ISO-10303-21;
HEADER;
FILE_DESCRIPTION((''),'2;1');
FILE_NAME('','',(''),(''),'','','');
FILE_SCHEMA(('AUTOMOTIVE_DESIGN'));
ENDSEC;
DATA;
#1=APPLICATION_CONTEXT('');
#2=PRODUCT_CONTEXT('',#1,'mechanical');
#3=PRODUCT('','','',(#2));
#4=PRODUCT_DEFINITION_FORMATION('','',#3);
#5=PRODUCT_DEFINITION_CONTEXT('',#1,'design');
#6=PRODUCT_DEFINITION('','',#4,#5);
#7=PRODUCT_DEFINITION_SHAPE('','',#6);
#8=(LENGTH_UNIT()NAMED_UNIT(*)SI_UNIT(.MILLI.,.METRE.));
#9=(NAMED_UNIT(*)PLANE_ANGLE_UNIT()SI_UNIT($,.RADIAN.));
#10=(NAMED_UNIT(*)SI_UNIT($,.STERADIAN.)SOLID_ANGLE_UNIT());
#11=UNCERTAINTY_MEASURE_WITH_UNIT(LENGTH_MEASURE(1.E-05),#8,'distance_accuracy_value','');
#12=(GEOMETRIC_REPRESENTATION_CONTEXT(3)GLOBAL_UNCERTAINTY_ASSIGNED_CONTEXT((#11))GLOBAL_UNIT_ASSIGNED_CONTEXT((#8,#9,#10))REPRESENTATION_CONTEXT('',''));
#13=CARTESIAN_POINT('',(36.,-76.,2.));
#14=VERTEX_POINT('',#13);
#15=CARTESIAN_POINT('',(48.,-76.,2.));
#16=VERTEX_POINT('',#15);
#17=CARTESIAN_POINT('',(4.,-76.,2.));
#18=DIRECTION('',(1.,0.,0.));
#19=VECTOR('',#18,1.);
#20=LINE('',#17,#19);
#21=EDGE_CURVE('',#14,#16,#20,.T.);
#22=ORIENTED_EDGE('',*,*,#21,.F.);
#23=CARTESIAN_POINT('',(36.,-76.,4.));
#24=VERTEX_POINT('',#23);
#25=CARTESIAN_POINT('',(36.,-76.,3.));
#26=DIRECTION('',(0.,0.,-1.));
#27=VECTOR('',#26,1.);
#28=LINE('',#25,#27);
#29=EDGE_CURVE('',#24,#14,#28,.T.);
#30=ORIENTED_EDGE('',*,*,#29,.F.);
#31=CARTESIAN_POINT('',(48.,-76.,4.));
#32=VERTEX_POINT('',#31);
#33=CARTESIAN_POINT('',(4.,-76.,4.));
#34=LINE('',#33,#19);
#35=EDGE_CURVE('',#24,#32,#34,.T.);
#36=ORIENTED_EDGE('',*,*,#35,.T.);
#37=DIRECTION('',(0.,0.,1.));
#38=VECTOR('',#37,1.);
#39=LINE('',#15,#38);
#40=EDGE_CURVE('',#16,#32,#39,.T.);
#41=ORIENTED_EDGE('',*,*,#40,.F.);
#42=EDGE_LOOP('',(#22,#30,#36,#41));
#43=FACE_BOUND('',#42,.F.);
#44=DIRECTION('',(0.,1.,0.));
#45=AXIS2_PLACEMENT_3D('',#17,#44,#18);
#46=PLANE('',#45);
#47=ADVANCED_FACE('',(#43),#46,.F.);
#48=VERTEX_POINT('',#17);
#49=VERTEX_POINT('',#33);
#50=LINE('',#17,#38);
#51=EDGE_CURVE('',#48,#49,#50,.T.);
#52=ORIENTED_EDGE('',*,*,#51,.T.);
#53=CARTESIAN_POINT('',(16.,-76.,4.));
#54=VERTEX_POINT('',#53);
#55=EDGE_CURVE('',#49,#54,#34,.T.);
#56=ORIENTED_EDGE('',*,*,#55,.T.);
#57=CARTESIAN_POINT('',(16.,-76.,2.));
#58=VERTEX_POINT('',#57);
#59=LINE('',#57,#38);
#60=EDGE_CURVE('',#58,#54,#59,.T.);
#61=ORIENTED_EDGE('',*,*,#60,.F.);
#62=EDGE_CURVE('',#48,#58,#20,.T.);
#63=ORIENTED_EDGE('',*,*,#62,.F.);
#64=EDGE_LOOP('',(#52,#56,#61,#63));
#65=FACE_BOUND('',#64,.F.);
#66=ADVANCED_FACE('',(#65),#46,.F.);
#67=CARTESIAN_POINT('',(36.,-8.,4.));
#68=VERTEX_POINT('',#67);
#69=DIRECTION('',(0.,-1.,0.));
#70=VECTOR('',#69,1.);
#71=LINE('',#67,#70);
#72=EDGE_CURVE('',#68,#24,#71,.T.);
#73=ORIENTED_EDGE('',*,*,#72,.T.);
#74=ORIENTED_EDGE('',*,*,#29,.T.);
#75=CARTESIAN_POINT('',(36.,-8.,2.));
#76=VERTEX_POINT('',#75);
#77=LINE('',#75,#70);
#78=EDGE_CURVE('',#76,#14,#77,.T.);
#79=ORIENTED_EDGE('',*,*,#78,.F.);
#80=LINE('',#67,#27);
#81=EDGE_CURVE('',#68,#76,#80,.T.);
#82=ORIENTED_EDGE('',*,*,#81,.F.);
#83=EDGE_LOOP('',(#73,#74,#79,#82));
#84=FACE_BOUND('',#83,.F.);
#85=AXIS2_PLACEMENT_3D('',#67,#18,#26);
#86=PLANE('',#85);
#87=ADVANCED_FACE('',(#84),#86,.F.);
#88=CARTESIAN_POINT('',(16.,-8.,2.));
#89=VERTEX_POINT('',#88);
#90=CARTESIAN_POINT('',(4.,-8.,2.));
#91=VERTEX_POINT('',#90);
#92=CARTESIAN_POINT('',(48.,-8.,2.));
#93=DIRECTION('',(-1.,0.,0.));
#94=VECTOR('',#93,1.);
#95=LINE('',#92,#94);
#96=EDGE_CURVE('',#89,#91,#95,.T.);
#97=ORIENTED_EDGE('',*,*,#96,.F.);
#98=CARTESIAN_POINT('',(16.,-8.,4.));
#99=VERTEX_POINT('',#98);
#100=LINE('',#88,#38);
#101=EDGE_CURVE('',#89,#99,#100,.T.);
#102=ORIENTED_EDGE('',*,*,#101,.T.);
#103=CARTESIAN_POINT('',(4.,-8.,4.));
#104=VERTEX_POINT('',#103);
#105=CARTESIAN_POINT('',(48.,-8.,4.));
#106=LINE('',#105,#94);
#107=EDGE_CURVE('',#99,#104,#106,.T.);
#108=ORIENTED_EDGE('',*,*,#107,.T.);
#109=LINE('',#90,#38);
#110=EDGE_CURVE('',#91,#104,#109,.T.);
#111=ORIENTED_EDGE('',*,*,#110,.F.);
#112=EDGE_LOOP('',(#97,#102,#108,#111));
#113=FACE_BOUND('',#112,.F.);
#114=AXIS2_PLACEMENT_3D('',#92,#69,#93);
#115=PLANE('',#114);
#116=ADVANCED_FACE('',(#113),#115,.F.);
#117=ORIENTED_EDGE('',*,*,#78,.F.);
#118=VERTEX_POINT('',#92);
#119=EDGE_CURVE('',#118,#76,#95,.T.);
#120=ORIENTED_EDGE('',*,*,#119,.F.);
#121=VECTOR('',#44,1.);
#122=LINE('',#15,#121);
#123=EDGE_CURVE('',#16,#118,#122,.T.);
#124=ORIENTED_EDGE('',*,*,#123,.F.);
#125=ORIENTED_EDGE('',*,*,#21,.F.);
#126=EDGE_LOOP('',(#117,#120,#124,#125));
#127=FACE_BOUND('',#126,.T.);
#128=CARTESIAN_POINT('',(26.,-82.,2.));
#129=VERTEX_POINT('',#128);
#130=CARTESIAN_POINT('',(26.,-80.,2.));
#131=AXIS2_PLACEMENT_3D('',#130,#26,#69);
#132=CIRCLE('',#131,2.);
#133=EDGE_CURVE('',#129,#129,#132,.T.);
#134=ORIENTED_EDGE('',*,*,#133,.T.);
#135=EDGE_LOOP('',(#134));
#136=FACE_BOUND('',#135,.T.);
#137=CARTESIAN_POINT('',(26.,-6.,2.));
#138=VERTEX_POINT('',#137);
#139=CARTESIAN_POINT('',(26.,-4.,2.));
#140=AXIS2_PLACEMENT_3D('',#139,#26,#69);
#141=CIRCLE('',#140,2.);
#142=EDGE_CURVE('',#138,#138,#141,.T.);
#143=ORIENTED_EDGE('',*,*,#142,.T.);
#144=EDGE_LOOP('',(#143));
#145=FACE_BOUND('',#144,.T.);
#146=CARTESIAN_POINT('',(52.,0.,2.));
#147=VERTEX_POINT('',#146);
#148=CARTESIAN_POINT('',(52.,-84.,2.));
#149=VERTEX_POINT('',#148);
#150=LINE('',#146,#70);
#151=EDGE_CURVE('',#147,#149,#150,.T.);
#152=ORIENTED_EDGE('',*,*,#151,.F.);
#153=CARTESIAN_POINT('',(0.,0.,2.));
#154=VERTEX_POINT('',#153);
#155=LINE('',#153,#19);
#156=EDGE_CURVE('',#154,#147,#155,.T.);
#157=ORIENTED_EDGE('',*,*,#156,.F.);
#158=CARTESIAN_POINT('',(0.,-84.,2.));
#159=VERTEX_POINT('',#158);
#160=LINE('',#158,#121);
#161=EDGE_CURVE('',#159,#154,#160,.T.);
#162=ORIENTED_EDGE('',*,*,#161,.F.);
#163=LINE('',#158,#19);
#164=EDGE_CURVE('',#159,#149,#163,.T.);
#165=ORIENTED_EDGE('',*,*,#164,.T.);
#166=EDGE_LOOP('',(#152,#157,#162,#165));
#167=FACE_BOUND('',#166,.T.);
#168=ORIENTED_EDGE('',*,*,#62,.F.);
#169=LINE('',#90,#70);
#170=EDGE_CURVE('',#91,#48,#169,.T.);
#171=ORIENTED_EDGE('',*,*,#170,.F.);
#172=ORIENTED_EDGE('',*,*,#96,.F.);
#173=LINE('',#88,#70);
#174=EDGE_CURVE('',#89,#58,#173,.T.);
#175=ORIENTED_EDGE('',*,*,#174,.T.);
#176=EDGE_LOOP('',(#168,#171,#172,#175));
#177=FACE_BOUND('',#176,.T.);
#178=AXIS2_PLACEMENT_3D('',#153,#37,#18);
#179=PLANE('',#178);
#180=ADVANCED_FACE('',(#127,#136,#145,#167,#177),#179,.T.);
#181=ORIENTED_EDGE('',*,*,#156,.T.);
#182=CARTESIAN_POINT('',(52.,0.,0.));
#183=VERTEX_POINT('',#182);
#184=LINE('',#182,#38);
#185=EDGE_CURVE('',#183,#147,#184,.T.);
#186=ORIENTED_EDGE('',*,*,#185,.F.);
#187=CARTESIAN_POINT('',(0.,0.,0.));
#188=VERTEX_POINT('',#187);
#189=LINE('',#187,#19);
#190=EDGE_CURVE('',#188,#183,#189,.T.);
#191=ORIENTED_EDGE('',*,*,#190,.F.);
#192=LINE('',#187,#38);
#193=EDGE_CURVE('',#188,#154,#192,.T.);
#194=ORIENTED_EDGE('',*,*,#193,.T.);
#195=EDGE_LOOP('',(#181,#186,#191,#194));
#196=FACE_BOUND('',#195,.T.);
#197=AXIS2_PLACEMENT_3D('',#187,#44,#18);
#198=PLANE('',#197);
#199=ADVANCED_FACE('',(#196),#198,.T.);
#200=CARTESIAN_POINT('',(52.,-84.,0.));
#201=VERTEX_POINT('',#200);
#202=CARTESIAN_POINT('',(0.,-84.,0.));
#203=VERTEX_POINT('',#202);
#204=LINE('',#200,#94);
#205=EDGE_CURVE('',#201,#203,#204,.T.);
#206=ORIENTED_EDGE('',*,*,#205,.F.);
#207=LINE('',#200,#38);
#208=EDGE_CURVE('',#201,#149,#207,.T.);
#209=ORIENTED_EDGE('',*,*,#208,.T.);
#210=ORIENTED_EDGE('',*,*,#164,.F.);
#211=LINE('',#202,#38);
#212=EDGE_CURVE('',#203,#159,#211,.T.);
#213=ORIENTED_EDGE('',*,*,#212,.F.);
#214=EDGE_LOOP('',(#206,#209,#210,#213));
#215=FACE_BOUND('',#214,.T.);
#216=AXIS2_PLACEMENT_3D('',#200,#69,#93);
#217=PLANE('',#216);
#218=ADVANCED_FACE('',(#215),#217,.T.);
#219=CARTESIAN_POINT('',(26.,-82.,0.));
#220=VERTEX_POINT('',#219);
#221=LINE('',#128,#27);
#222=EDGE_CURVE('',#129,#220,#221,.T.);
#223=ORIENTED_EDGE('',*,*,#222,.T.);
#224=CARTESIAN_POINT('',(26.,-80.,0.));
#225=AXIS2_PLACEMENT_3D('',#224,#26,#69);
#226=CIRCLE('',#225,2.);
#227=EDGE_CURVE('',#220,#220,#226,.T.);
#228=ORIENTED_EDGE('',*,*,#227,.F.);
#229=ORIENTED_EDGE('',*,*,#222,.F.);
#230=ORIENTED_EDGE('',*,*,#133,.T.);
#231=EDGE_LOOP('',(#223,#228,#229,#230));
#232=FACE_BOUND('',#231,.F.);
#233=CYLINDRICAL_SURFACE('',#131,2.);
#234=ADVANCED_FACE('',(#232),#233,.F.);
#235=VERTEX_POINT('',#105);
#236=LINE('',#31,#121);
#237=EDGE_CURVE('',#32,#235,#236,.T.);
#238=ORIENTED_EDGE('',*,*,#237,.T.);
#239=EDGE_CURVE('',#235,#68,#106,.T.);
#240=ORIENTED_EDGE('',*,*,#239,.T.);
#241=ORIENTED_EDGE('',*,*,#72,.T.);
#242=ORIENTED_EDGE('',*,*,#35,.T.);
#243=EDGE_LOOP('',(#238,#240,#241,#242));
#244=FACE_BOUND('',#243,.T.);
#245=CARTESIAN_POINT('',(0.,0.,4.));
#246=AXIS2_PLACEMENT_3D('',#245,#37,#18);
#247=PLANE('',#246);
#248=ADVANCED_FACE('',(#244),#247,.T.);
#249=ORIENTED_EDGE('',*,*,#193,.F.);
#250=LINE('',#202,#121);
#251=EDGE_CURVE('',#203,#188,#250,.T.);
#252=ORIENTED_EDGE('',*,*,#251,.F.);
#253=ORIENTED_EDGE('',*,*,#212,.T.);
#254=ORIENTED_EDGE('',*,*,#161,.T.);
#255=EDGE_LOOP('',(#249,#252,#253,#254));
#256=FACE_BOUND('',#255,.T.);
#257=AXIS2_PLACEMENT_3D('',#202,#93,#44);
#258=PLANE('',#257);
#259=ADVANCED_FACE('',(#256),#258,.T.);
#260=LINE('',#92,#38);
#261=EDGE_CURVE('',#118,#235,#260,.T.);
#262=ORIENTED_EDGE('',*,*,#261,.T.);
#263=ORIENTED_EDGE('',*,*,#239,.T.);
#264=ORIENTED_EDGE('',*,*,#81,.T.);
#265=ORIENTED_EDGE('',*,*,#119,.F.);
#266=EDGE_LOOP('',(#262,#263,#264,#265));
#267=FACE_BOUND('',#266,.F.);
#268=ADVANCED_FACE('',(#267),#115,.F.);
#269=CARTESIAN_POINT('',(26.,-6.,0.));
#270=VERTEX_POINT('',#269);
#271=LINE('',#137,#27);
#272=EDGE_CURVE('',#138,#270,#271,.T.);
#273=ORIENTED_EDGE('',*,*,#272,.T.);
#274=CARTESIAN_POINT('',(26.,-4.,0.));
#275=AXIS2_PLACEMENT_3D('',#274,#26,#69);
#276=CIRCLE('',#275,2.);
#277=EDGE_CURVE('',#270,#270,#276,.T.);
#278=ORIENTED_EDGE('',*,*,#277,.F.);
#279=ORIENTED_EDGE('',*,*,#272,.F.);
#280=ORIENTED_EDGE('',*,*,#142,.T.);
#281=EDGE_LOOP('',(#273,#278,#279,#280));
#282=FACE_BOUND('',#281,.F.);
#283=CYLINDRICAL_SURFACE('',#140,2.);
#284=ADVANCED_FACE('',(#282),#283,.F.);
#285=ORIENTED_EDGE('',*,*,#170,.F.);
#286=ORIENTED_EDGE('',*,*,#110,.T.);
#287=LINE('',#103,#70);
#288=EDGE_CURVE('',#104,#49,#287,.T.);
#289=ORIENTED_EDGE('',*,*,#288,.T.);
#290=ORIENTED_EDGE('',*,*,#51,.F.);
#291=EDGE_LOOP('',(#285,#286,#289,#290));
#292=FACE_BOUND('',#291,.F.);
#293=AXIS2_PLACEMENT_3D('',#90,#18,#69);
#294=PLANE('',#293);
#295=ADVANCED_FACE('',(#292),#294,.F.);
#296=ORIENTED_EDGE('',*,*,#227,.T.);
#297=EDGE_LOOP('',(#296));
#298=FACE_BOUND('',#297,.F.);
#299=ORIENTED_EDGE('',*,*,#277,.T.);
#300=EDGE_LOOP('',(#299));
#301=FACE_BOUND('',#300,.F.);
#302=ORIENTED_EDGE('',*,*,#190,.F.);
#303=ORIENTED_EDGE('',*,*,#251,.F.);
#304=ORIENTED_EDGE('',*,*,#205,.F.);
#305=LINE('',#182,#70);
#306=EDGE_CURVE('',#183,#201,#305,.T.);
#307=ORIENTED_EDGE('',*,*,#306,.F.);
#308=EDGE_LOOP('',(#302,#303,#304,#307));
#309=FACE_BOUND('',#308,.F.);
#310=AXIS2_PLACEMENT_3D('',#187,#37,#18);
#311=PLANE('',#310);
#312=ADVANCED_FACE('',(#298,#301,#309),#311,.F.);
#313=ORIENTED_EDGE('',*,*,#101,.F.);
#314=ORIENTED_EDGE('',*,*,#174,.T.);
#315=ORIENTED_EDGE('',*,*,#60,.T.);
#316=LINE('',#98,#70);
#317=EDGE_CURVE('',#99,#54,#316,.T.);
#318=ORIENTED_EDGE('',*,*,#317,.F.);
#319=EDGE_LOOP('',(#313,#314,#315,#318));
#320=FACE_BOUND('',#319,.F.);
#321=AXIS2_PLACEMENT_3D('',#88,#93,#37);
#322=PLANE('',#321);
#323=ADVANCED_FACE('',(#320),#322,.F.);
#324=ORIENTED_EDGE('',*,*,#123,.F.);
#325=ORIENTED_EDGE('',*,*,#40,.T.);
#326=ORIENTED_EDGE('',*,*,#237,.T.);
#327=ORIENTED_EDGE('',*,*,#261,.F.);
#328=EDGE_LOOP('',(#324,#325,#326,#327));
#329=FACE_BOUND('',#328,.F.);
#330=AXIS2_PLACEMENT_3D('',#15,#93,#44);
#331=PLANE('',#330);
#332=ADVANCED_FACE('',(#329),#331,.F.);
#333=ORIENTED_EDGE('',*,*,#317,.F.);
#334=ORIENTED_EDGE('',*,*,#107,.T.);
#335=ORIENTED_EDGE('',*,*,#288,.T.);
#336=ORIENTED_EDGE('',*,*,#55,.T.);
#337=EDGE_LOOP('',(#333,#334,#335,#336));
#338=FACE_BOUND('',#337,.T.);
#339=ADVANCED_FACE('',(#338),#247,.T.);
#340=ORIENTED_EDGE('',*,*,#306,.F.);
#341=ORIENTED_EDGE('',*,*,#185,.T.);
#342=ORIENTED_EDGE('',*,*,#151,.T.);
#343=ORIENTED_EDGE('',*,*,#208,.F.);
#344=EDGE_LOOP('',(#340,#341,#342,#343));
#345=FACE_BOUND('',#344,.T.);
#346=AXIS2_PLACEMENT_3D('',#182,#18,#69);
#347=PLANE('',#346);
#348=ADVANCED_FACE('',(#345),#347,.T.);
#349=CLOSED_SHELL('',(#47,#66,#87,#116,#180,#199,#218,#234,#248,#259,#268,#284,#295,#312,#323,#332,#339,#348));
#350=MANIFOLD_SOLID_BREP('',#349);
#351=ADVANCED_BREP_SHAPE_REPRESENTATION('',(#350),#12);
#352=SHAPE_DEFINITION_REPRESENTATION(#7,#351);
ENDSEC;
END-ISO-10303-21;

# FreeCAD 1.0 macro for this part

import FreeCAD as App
import Part
import Sketcher
from FreeCAD import Vector
Q = App.Units.Quantity


def add_polygon(sketch, points):
    """Adds a closed chain of lines whose ends are joined by coincident constraints."""
    first, n = sketch.GeometryCount, len(points)
    for a, b in zip(points, points[1:] + points[:1]):
        sketch.addGeometry(Part.LineSegment(App.Vector(*a, 0), App.Vector(*b, 0)), False)
    for i in range(n):
        sketch.addConstraint(Sketcher.Constraint("Coincident", first + i, 2, first + (i + 1) % n, 1))

doc = App.newDocument("Part")
body = doc.addObject("PartDesign::Body", "Body")

# Sketch on XY plane
sketch1 = doc.addObject("Sketcher::SketchObject", "Sketch")
body.addObject(sketch1)
sketch1.AttachmentSupport = (doc.XY_Plane, [""])
sketch1.MapMode = "FlatFace"
add_polygon(sketch1, [(52, 0), (0, 0), (0, -84), (52, -84)])  # lines 0-3
sketch1.addConstraint([
    Sketcher.Constraint("Horizontal", 0),
    Sketcher.Constraint("Vertical", 1),
    Sketcher.Constraint("Horizontal", 2),
    Sketcher.Constraint("Vertical", 3),
    Sketcher.Constraint("Coincident", 0, 2, -1, 1),
    Sketcher.Constraint("DistanceX", 0, 2, 0, 1, Q("52 mm")),
    Sketcher.Constraint("DistanceY", 1, 2, 1, 1, Q("84 mm")),
])
pad1 = doc.addObject("PartDesign::Pad", "Pad")
body.addObject(pad1)
pad1.Profile = sketch1
pad1.Length = 2

# Sketch on XY plane
sketch2 = doc.addObject("Sketcher::SketchObject", "Sketch001")
body.addObject(sketch2)
sketch2.AttachmentSupport = (doc.XY_Plane, [""])
sketch2.MapMode = "FlatFace"
sketch2.AttachmentOffset = App.Placement(Vector(0, 0, 2), App.Rotation())
add_polygon(sketch2, [(48, -76), (48, -8), (4, -8), (4, -76)])  # lines 0-3
sketch2.addConstraint([
    Sketcher.Constraint("Vertical", 0),
    Sketcher.Constraint("Horizontal", 1),
    Sketcher.Constraint("Vertical", 2),
    Sketcher.Constraint("Horizontal", 3),
    Sketcher.Constraint("DistanceY", 0, 2, -1, 1, Q("8 mm")),
    Sketcher.Constraint("DistanceX", -1, 1, 1, 2, Q("4 mm")),
    Sketcher.Constraint("DistanceX", 1, 2, 1, 1, Q("44 mm")),
    Sketcher.Constraint("DistanceY", 0, 1, 0, 2, Q("68 mm")),
])
pad2 = doc.addObject("PartDesign::Pad", "Pad001")
body.addObject(pad2)
pad2.Profile = sketch2
pad2.Length = 2

# Sketch on XZ plane
sketch3 = doc.addObject("Sketcher::SketchObject", "Sketch002")
body.addObject(sketch3)
sketch3.AttachmentSupport = (doc.XZ_Plane, [""])
sketch3.MapMode = "FlatFace"
sketch3.AttachmentOffset = App.Placement(Vector(0, 0, 8), App.Rotation())
add_polygon(sketch3, [(36, 2), (16, 2), (16, 4), (36, 4)])  # lines 0-3
sketch3.addConstraint([
    Sketcher.Constraint("Horizontal", 0),
    Sketcher.Constraint("Vertical", 1),
    Sketcher.Constraint("Horizontal", 2),
    Sketcher.Constraint("Vertical", 3),
    Sketcher.Constraint("DistanceX", 0, 2, 0, 1, Q("20 mm")),
    Sketcher.Constraint("DistanceY", 1, 1, 1, 2, Q("2 mm")),
    Sketcher.Constraint("DistanceX", -1, 1, 0, 2, Q("16 mm")),
    Sketcher.Constraint("DistanceY", -1, 1, 0, 2, Q("2 mm")),
])
pocket1 = doc.addObject("PartDesign::Pocket", "Pocket")
body.addObject(pocket1)
pocket1.Profile = sketch3
pocket1.Type = "ThroughAll"
pocket1.Reversed = True

# Sketch on XY plane
sketch4 = doc.addObject("Sketcher::SketchObject", "Sketch003")
body.addObject(sketch4)
sketch4.AttachmentSupport = (doc.XY_Plane, [""])
sketch4.MapMode = "FlatFace"
sketch4.AttachmentOffset = App.Placement(Vector(0, 0, 2), App.Rotation())
sketch4.addGeometry([
    Part.Circle(Vector(26, -4, 0), Vector(0, 0, 1), 2),
    Part.Circle(Vector(26, -80, 0), Vector(0, 0, 1), 2),
], False)
sketch4.addConstraint([
    Sketcher.Constraint("Equal", 0, 1),
    Sketcher.Constraint("Vertical", 0, 3, 1, 3),
    Sketcher.Constraint("Diameter", 0, Q("4 mm")),
    Sketcher.Constraint("DistanceX", -1, 1, 0, 3, Q("26 mm")),
    Sketcher.Constraint("DistanceY", 0, 3, -1, 1, Q("4 mm")),
    Sketcher.Constraint("DistanceY", 1, 3, -1, 1, Q("80 mm")),
])
doc.recompute()
hole = doc.addObject("PartDesign::Hole", "Hole")
body.addObject(hole)
hole.Profile = sketch4
hole.ThreadType = "None"
hole.Diameter = 4
hole.DepthType = "Dimension"
hole.Depth = 2
hole.DrillPoint = "Flat"

doc.recompute()
